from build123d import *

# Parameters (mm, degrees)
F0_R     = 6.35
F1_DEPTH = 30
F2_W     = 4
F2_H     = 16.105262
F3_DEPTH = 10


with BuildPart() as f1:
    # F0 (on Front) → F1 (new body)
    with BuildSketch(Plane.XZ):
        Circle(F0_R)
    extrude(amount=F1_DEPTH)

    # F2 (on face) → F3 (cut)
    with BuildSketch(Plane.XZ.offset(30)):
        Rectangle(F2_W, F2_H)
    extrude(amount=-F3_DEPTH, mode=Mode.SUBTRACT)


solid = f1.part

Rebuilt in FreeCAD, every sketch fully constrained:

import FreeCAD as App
import Part
import Sketcher
Q = App.Units.Quantity

doc = App.newDocument("Part")
body = doc.addObject("PartDesign::Body", "Body")

sketch1 = body.newObject("Sketcher::SketchObject", "Sketch")
sketch1.AttachmentSupport = (doc.getObject("XZ_Plane"), [""])
sketch1.MapMode = "FlatFace"
sketch1.addGeometry(Part.Circle(App.Vector(0, 0, 0), App.Vector(0, 0, 1), 6), False)
sketch1.addConstraint([
    Sketcher.Constraint("Coincident", 0, 3, -1, 1),
    Sketcher.Constraint("Diameter", 0, Q("12.7 mm")),
])
pad1 = body.newObject("PartDesign::Pad", "Pad")
pad1.Profile = sketch1
pad1.Length = 30

sketch2 = body.newObject("Sketcher::SketchObject", "Sketch001")
sketch2.AttachmentSupport = (doc.getObject("XZ_Plane"), [""])
sketch2.MapMode = "FlatFace"
sketch2.AttachmentOffset = App.Placement(App.Vector(0, 0, 30), App.Rotation())
sketch2.addGeometry([
    Part.LineSegment(App.Vector(-2, 8.1, 0), App.Vector(-2, -8.1, 0)),
    Part.LineSegment(App.Vector(-2, -8.1, 0), App.Vector(2, -8.1, 0)),
    Part.LineSegment(App.Vector(2, -8.1, 0), App.Vector(2, 8.1, 0)),
    Part.LineSegment(App.Vector(2, 8.1, 0), App.Vector(-2, 8.1, 0)),
], False)
sketch2.addConstraint([
    Sketcher.Constraint("Coincident", 0, 2, 1, 1),
    Sketcher.Constraint("Coincident", 1, 2, 2, 1),
    Sketcher.Constraint("Coincident", 2, 2, 3, 1),
    Sketcher.Constraint("Coincident", 3, 2, 0, 1),
    Sketcher.Constraint("Vertical", 0),
    Sketcher.Constraint("Horizontal", 1),
    Sketcher.Constraint("Vertical", 2),
    Sketcher.Constraint("Horizontal", 3),
    Sketcher.Constraint("Symmetric", 0, 2, 2, 2, -1, 1),
    Sketcher.Constraint("DistanceX", 1, 1, 1, 2, Q("4 mm")),
    Sketcher.Constraint("DistanceY", 0, 2, 0, 1, Q("16.105262 mm")),
])
pocket1 = body.newObject("PartDesign::Pocket", "Pocket")
pocket1.Profile = sketch2
pocket1.Length = 10

doc.recompute()
